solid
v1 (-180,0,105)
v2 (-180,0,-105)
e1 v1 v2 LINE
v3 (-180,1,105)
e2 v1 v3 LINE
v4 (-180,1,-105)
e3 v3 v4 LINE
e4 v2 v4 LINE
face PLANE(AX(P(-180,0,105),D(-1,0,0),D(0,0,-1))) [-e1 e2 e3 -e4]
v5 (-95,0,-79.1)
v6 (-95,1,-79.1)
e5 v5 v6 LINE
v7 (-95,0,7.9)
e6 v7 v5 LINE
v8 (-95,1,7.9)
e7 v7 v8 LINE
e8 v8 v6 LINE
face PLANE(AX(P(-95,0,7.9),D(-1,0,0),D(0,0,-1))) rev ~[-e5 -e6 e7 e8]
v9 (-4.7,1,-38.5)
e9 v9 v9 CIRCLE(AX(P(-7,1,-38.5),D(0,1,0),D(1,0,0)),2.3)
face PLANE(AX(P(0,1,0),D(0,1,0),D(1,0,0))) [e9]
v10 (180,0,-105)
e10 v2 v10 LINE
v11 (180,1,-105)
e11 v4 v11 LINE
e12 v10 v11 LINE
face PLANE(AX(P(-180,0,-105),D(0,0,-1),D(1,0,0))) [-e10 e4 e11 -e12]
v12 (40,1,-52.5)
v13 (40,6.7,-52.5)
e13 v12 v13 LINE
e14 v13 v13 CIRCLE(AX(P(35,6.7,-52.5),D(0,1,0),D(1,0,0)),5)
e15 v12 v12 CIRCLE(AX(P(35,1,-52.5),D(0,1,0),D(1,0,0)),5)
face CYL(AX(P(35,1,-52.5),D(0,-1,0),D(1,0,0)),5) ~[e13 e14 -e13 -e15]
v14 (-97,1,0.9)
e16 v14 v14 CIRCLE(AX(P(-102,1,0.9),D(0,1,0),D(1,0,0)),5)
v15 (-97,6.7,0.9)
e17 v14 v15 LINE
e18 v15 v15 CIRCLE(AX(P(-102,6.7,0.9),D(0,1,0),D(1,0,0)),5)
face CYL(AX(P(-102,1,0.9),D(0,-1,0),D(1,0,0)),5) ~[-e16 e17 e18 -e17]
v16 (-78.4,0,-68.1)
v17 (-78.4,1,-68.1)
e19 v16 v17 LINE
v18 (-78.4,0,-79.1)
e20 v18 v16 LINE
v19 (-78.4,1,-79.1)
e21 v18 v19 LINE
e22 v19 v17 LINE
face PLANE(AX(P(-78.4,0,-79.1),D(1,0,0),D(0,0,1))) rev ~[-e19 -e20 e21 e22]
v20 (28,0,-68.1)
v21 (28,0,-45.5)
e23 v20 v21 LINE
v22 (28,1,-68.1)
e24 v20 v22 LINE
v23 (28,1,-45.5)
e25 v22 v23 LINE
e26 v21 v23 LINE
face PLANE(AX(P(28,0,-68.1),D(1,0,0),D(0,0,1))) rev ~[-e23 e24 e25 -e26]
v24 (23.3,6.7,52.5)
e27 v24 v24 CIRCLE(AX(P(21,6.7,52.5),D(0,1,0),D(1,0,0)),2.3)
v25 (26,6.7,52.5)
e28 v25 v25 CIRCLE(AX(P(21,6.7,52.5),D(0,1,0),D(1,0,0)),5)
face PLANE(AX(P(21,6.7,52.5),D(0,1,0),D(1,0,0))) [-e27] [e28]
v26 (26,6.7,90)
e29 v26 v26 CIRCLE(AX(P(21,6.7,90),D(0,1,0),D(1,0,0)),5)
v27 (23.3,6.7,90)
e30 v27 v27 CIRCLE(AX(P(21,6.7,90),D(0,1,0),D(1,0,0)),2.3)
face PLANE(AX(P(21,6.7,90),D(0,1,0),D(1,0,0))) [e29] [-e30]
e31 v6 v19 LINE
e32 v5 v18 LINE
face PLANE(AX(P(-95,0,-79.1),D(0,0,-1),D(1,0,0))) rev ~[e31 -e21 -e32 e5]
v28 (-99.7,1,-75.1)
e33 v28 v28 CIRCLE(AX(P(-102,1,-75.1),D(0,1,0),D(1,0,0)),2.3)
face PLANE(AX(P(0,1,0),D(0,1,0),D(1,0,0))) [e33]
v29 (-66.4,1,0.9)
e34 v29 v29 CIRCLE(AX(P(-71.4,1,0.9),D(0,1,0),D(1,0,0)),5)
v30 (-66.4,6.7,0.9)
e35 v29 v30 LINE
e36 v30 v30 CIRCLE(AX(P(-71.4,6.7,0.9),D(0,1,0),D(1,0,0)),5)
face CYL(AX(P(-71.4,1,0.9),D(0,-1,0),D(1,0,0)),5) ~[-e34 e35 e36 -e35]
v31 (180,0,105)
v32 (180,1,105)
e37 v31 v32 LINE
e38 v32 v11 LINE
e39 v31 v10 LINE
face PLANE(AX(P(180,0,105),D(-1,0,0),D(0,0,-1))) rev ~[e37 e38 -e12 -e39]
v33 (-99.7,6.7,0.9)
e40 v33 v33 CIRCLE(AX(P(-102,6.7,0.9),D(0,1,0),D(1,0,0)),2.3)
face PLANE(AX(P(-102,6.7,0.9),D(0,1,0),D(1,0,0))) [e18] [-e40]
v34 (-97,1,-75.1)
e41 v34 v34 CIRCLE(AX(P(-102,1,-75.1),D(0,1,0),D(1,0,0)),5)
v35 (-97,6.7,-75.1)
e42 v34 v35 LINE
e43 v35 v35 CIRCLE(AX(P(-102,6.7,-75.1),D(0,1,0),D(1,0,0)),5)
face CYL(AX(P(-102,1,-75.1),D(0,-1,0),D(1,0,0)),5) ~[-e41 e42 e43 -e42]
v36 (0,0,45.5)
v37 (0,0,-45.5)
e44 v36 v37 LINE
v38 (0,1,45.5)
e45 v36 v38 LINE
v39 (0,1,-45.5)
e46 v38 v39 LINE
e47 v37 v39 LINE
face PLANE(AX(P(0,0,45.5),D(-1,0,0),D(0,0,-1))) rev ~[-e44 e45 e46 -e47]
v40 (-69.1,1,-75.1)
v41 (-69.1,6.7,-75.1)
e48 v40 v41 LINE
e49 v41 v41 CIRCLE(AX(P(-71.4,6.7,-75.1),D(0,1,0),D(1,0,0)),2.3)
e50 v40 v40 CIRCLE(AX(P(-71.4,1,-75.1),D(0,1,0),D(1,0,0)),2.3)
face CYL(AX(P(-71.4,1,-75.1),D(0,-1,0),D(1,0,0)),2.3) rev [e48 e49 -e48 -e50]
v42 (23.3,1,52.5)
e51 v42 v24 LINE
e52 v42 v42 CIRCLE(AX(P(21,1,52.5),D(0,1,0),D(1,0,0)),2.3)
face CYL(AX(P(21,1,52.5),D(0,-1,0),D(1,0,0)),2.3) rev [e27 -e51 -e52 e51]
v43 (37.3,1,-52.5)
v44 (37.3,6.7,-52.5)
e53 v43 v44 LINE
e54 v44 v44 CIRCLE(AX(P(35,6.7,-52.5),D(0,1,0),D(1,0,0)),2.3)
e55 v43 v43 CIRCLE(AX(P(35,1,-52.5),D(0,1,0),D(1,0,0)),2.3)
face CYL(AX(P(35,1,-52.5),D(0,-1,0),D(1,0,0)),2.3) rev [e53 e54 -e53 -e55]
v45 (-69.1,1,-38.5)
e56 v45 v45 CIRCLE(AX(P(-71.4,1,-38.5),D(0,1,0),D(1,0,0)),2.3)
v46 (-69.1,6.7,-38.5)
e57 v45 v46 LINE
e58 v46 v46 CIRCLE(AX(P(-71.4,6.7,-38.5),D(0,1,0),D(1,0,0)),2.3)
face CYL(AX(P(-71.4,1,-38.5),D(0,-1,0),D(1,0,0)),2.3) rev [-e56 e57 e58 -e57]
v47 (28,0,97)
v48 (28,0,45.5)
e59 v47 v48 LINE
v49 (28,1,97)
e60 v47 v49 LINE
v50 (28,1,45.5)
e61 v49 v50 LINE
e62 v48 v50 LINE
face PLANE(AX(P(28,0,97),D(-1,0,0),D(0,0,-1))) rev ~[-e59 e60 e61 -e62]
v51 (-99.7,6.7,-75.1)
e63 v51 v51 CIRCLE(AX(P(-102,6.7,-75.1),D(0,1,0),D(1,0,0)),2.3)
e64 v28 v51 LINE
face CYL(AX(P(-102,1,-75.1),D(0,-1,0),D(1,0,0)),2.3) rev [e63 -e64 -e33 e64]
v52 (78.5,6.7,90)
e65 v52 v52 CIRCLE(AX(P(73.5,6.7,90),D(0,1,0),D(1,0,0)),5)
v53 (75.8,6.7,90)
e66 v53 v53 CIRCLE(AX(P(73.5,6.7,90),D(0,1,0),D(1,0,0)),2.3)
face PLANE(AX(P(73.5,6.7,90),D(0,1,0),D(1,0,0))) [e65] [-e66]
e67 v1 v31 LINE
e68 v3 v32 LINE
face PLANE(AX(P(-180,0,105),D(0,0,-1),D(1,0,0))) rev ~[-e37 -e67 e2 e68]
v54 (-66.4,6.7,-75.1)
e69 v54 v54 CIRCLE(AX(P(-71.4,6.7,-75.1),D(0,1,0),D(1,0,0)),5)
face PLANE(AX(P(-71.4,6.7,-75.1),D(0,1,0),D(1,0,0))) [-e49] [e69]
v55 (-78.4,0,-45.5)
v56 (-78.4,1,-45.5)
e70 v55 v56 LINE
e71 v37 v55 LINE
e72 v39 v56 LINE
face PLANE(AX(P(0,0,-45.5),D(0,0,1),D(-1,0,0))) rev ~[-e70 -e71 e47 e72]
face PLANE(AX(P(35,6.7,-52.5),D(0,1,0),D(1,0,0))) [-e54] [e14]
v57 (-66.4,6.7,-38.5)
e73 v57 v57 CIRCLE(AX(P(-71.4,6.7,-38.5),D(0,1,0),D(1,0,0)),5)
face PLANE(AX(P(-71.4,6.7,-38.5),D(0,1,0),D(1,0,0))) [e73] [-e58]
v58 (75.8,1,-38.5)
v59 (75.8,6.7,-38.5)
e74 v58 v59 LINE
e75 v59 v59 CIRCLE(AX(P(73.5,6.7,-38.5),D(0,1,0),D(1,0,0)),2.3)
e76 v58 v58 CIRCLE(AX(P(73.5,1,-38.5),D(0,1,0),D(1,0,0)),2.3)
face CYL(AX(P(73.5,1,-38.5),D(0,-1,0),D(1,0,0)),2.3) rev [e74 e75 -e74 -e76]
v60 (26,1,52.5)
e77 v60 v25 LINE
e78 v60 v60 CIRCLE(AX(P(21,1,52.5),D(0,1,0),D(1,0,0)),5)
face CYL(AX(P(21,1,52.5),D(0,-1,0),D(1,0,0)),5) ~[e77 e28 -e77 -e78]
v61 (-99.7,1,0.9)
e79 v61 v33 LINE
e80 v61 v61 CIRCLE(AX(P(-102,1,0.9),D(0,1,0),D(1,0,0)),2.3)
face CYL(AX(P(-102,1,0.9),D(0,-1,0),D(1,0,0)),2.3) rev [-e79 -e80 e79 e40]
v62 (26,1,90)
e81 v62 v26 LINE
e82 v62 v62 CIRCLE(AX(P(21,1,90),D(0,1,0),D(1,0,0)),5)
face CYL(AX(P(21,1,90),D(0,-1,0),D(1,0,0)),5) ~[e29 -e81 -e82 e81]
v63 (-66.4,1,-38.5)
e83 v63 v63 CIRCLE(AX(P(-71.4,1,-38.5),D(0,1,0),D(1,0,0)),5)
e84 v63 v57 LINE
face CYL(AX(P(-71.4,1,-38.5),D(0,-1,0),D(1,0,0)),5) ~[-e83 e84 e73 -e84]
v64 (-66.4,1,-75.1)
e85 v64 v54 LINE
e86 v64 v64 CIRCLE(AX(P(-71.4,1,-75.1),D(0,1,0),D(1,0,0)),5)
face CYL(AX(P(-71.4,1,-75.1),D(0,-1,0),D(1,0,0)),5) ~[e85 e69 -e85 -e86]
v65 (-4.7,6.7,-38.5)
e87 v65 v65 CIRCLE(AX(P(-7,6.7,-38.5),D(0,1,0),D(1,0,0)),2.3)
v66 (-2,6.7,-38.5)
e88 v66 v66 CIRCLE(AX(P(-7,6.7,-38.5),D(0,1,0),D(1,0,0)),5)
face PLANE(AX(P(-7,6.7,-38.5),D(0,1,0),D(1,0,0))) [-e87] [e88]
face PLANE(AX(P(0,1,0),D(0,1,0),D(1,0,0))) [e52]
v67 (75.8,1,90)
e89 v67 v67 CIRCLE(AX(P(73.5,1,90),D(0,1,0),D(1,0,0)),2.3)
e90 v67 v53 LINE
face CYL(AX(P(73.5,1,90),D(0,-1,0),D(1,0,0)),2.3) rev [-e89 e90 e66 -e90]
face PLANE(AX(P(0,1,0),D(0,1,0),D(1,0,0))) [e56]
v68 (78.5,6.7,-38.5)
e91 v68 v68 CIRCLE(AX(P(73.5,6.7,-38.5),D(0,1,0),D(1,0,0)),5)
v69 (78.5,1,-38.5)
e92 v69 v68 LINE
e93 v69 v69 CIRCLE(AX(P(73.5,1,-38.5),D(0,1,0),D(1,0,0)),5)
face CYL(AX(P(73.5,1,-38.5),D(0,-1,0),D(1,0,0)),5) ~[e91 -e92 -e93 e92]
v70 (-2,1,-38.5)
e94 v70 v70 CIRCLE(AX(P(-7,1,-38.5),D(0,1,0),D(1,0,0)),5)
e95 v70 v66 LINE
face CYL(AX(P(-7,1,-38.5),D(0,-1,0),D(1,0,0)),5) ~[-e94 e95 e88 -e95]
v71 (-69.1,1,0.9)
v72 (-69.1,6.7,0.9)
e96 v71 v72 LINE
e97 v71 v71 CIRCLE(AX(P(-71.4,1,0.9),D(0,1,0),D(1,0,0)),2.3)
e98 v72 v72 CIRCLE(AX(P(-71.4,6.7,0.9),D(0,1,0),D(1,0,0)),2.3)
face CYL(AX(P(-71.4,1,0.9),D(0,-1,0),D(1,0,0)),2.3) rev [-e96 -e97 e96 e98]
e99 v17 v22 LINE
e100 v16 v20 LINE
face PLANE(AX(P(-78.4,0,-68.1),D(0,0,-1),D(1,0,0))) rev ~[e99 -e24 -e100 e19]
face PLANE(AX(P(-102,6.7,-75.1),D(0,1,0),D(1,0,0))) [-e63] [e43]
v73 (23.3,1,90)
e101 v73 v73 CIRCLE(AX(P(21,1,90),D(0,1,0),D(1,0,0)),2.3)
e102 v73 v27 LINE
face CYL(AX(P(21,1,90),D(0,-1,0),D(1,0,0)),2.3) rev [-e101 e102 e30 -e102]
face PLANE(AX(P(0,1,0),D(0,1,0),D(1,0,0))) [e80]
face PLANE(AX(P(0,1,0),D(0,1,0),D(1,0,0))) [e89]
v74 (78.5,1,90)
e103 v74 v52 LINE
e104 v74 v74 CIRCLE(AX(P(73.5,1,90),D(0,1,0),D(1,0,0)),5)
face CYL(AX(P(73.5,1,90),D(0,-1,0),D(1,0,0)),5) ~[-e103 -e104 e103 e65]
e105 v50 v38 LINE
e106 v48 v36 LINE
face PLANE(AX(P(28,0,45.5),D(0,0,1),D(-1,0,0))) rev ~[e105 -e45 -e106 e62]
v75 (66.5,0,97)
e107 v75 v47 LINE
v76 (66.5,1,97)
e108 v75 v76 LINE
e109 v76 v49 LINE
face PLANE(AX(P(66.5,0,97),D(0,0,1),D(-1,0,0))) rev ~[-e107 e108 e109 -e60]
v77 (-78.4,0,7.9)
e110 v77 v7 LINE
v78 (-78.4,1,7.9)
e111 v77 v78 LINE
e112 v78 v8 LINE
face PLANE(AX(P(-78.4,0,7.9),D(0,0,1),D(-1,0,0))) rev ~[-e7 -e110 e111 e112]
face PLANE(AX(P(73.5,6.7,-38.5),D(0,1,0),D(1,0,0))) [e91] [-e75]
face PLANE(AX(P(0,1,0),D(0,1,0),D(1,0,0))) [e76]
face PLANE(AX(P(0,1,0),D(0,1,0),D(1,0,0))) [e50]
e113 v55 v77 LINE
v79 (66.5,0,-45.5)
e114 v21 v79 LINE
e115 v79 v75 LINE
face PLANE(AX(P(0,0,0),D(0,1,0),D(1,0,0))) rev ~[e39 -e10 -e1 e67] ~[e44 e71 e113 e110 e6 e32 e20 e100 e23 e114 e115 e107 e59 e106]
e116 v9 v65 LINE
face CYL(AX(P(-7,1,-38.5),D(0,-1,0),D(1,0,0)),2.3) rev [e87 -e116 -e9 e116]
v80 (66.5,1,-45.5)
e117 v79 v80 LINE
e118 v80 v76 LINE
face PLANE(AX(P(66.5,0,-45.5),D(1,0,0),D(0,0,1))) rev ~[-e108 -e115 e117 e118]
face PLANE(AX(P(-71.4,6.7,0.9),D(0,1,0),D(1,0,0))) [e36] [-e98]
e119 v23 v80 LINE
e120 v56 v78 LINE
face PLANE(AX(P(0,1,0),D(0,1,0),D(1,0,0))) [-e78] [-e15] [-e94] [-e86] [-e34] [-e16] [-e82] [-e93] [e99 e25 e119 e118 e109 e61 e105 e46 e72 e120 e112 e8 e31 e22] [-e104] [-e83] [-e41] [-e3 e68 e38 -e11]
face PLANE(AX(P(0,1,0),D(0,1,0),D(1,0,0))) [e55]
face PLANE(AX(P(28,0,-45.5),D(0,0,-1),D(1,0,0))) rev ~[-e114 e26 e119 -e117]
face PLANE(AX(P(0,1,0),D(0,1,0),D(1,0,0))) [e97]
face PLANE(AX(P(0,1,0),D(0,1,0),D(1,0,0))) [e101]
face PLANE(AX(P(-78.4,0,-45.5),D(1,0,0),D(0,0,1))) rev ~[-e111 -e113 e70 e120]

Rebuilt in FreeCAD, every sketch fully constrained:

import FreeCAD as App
import Part
import Sketcher

V = App.Vector

doc = App.newDocument("Part")
body = doc.addObject("PartDesign::Body", "Body")

# Sketch on XZ plane
sketch1 = body.newObject("Sketcher::SketchObject", "Sketch")
sketch1.AttachmentSupport = (doc.getObject("XZ_Plane"), [""])
sketch1.MapMode = "FlatFace"
sketch1.addGeometry(Part.LineSegment(V(-180, -105, 0), V(-180, 105, 0)), False)
sketch1.addGeometry(Part.LineSegment(V(-180, 105, 0), V(180, 105, 0)), False)
sketch1.addGeometry(Part.LineSegment(V(180, 105, 0), V(180, -105, 0)), False)
sketch1.addGeometry(Part.LineSegment(V(180, -105, 0), V(-180, -105, 0)), False)
sketch1.addGeometry(Part.LineSegment(V(28, 97, 0), V(28, 46, 0)), False)
sketch1.addGeometry(Part.LineSegment(V(28, 46, 0), V(0, 46, 0)), False)
sketch1.addGeometry(Part.LineSegment(V(0, 46, 0), V(0, -46, 0)), False)
sketch1.addGeometry(Part.LineSegment(V(0, -46, 0), V(-78, -46, 0)), False)
sketch1.addGeometry(Part.LineSegment(V(-78, -46, 0), V(-78, 8, 0)), False)
sketch1.addGeometry(Part.LineSegment(V(-78, 8, 0), V(-95, 8, 0)), False)
sketch1.addGeometry(Part.LineSegment(V(-95, 8, 0), V(-95, -79, 0)), False)
sketch1.addGeometry(Part.LineSegment(V(-95, -79, 0), V(-78, -79, 0)), False)
sketch1.addGeometry(Part.LineSegment(V(-78, -79, 0), V(-78, -68, 0)), False)
sketch1.addGeometry(Part.LineSegment(V(-78, -68, 0), V(28, -68, 0)), False)
sketch1.addGeometry(Part.LineSegment(V(28, -68, 0), V(28, -46, 0)), False)
sketch1.addGeometry(Part.LineSegment(V(28, -46, 0), V(66, -46, 0)), False)
sketch1.addGeometry(Part.LineSegment(V(66, -46, 0), V(66, 97, 0)), False)
sketch1.addGeometry(Part.LineSegment(V(66, 97, 0), V(28, 97, 0)), False)
sketch1.addConstraint(Sketcher.Constraint("Coincident", 0, 2, 1, 1))
sketch1.addConstraint(Sketcher.Constraint("Coincident", 1, 2, 2, 1))
sketch1.addConstraint(Sketcher.Constraint("Coincident", 2, 2, 3, 1))
sketch1.addConstraint(Sketcher.Constraint("Coincident", 3, 2, 0, 1))
sketch1.addConstraint(Sketcher.Constraint("Coincident", 4, 2, 5, 1))
sketch1.addConstraint(Sketcher.Constraint("Coincident", 5, 2, 6, 1))
sketch1.addConstraint(Sketcher.Constraint("Coincident", 6, 2, 7, 1))
sketch1.addConstraint(Sketcher.Constraint("Coincident", 7, 2, 8, 1))
sketch1.addConstraint(Sketcher.Constraint("Coincident", 8, 2, 9, 1))
sketch1.addConstraint(Sketcher.Constraint("Coincident", 9, 2, 10, 1))
sketch1.addConstraint(Sketcher.Constraint("Coincident", 10, 2, 11, 1))
sketch1.addConstraint(Sketcher.Constraint("Coincident", 11, 2, 12, 1))
sketch1.addConstraint(Sketcher.Constraint("Coincident", 12, 2, 13, 1))
sketch1.addConstraint(Sketcher.Constraint("Coincident", 13, 2, 14, 1))
sketch1.addConstraint(Sketcher.Constraint("Coincident", 14, 2, 15, 1))
sketch1.addConstraint(Sketcher.Constraint("Coincident", 15, 2, 16, 1))
sketch1.addConstraint(Sketcher.Constraint("Coincident", 16, 2, 17, 1))
sketch1.addConstraint(Sketcher.Constraint("Coincident", 17, 2, 4, 1))
sketch1.addConstraint(Sketcher.Constraint("Vertical", 0))
sketch1.addConstraint(Sketcher.Constraint("Horizontal", 1))
sketch1.addConstraint(Sketcher.Constraint("Vertical", 2))
sketch1.addConstraint(Sketcher.Constraint("Horizontal", 3))
sketch1.addConstraint(Sketcher.Constraint("Vertical", 4))
sketch1.addConstraint(Sketcher.Constraint("Horizontal", 5))
sketch1.addConstraint(Sketcher.Constraint("Vertical", 6))
sketch1.addConstraint(Sketcher.Constraint("Horizontal", 7))
sketch1.addConstraint(Sketcher.Constraint("Vertical", 8))
sketch1.addConstraint(Sketcher.Constraint("Horizontal", 9))
sketch1.addConstraint(Sketcher.Constraint("Vertical", 10))
sketch1.addConstraint(Sketcher.Constraint("Horizontal", 11))
sketch1.addConstraint(Sketcher.Constraint("Vertical", 12))
sketch1.addConstraint(Sketcher.Constraint("Horizontal", 13))
sketch1.addConstraint(Sketcher.Constraint("Vertical", 14))
sketch1.addConstraint(Sketcher.Constraint("Horizontal", 15))
sketch1.addConstraint(Sketcher.Constraint("Vertical", 16))
sketch1.addConstraint(Sketcher.Constraint("Horizontal", 17))
sketch1.addConstraint(Sketcher.Constraint("Symmetric", 0, 2, 2, 2, -1, 1))
sketch1.addConstraint(Sketcher.Constraint("Symmetric", 5, 2, 6, 2, -1, 1))
sketch1.addConstraint(Sketcher.Constraint("Symmetric", 4, 2, 14, 2, -1))
sketch1.addConstraint(Sketcher.Constraint("Vertical", 8, 2, 11, 2))
sketch1.addConstraint(Sketcher.Constraint("DistanceX", 1, 1, 1, 2, 360.0))
sketch1.addConstraint(Sketcher.Constraint("DistanceX", 5, 2, 5, 1, 28.0))
sketch1.addConstraint(Sketcher.Constraint("DistanceY", 0, 1, 0, 2, 210.0))
sketch1.addConstraint(Sketcher.Constraint("DistanceY", 6, 2, 6, 1, 91.0))
sketch1.addConstraint(Sketcher.Constraint("DistanceY", 10, 2, 10, 1, 87.0))
sketch1.addConstraint(Sketcher.Constraint("DistanceY", 12, 1, 12, 2, 11.0))
sketch1.addConstraint(Sketcher.Constraint("DistanceX", 7, 2, 7, 1, 78.4))
sketch1.addConstraint(Sketcher.Constraint("DistanceX", 9, 2, 9, 1, 16.6))
sketch1.addConstraint(Sketcher.Constraint("DistanceX", 15, 1, 15, 2, 38.5))
sketch1.addConstraint(Sketcher.Constraint("DistanceY", 4, 2, 4, 1, 51.5))
sketch1.addConstraint(Sketcher.Constraint("DistanceY", 8, 1, 8, 2, 53.4))
pad1 = body.newObject("PartDesign::Pad", "Pad")
pad1.Profile = sketch1
pad1.Length = 1
pad1.Reversed = True

# Sketch on XZ plane
sketch2 = body.newObject("Sketcher::SketchObject", "Sketch001")
sketch2.AttachmentSupport = (doc.getObject("XZ_Plane"), [""])
sketch2.MapMode = "FlatFace"
sketch2.AttachmentOffset = App.Placement(V(0, 0, -1), App.Rotation())
sketch2.addGeometry(Part.Circle(V(-71.4, -75.1, 0), V(0, 0, 1), 5), False)
sketch2.addGeometry(Part.Circle(V(-71.4, -75.1, 0), V(0, 0, 1), 2.3), False)
sketch2.addGeometry(Part.Circle(V(-71.4, -38.5, 0), V(0, 0, 1), 5), False)
sketch2.addGeometry(Part.Circle(V(-71.4, -38.5, 0), V(0, 0, 1), 2.3), False)
sketch2.addGeometry(Part.Circle(V(-102, -75.1, 0), V(0, 0, 1), 5), False)
sketch2.addGeometry(Part.Circle(V(-102, -75.1, 0), V(0, 0, 1), 2.3), False)
sketch2.addGeometry(Part.Circle(V(-7, -38.5, 0), V(0, 0, 1), 5), False)
sketch2.addGeometry(Part.Circle(V(-7, -38.5, 0), V(0, 0, 1), 2.3), False)
sketch2.addGeometry(Part.Circle(V(35, -52.5, 0), V(0, 0, 1), 5), False)
sketch2.addGeometry(Part.Circle(V(35, -52.5, 0), V(0, 0, 1), 2.3), False)
sketch2.addGeometry(Part.Circle(V(21, 52.5, 0), V(0, 0, 1), 5), False)
sketch2.addGeometry(Part.Circle(V(21, 52.5, 0), V(0, 0, 1), 2.3), False)
sketch2.addGeometry(Part.Circle(V(-71.4, 0.9, 0), V(0, 0, 1), 5), False)
sketch2.addGeometry(Part.Circle(V(-71.4, 0.9, 0), V(0, 0, 1), 2.3), False)
sketch2.addGeometry(Part.Circle(V(-102, 0.9, 0), V(0, 0, 1), 5), False)
sketch2.addGeometry(Part.Circle(V(-102, 0.9, 0), V(0, 0, 1), 2.3), False)
sketch2.addGeometry(Part.Circle(V(73.5, -38.5, 0), V(0, 0, 1), 5), False)
sketch2.addGeometry(Part.Circle(V(73.5, -38.5, 0), V(0, 0, 1), 2.3), False)
sketch2.addGeometry(Part.Circle(V(73.5, 90, 0), V(0, 0, 1), 5), False)
sketch2.addGeometry(Part.Circle(V(73.5, 90, 0), V(0, 0, 1), 2.3), False)
sketch2.addGeometry(Part.Circle(V(21, 90, 0), V(0, 0, 1), 5), False)
sketch2.addGeometry(Part.Circle(V(21, 90, 0), V(0, 0, 1), 2.3), False)
sketch2.addConstraint(Sketcher.Constraint("Coincident", 1, 3, 0, 3))
sketch2.addConstraint(Sketcher.Constraint("Coincident", 3, 3, 2, 3))
sketch2.addConstraint(Sketcher.Constraint("Coincident", 5, 3, 4, 3))
sketch2.addConstraint(Sketcher.Constraint("Coincident", 7, 3, 6, 3))
sketch2.addConstraint(Sketcher.Constraint("Coincident", 9, 3, 8, 3))
sketch2.addConstraint(Sketcher.Constraint("Coincident", 11, 3, 10, 3))
sketch2.addConstraint(Sketcher.Constraint("Coincident", 13, 3, 12, 3))
sketch2.addConstraint(Sketcher.Constraint("Coincident", 15, 3, 14, 3))
sketch2.addConstraint(Sketcher.Constraint("Coincident", 17, 3, 16, 3))
sketch2.addConstraint(Sketcher.Constraint("Coincident", 19, 3, 18, 3))
sketch2.addConstraint(Sketcher.Constraint("Coincident", 21, 3, 20, 3))
sketch2.addConstraint(Sketcher.Constraint("Equal", 0, 2))
sketch2.addConstraint(Sketcher.Constraint("Equal", 1, 3))
sketch2.addConstraint(Sketcher.Constraint("Equal", 2, 4))
sketch2.addConstraint(Sketcher.Constraint("Equal", 3, 5))
sketch2.addConstraint(Sketcher.Constraint("Equal", 4, 6))
sketch2.addConstraint(Sketcher.Constraint("Equal", 5, 7))
sketch2.addConstraint(Sketcher.Constraint("Equal", 6, 8))
sketch2.addConstraint(Sketcher.Constraint("Equal", 7, 9))
sketch2.addConstraint(Sketcher.Constraint("Equal", 8, 10))
sketch2.addConstraint(Sketcher.Constraint("Equal", 9, 11))
sketch2.addConstraint(Sketcher.Constraint("Equal", 10, 12))
sketch2.addConstraint(Sketcher.Constraint("Equal", 11, 13))
sketch2.addConstraint(Sketcher.Constraint("Equal", 12, 14))
sketch2.addConstraint(Sketcher.Constraint("Equal", 13, 15))
sketch2.addConstraint(Sketcher.Constraint("Equal", 14, 16))
sketch2.addConstraint(Sketcher.Constraint("Equal", 15, 17))
sketch2.addConstraint(Sketcher.Constraint("Equal", 16, 18))
sketch2.addConstraint(Sketcher.Constraint("Equal", 17, 19))
sketch2.addConstraint(Sketcher.Constraint("Equal", 18, 20))
sketch2.addConstraint(Sketcher.Constraint("Equal", 19, 21))
sketch2.addConstraint(Sketcher.Constraint("Horizontal", 1, 3, 4, 3))
sketch2.addConstraint(Sketcher.Constraint("Horizontal", 3, 3, 6, 3))
sketch2.addConstraint(Sketcher.Constraint("Horizontal", 13, 3, 14, 3))
sketch2.addConstraint(Sketcher.Constraint("Horizontal", 7, 3, 16, 3))
sketch2.addConstraint(Sketcher.Constraint("Horizontal", 19, 3, 20, 3))
sketch2.addConstraint(Sketcher.Constraint("Vertical", 1, 3, 2, 3))
sketch2.addConstraint(Sketcher.Constraint("Vertical", 3, 3, 12, 3))
sketch2.addConstraint(Sketcher.Constraint("Vertical", 5, 3, 14, 3))
sketch2.addConstraint(Sketcher.Constraint("Vertical", 17, 3, 18, 3))
sketch2.addConstraint(Sketcher.Constraint("Vertical", 11, 3, 20, 3))
sketch2.addConstraint(Sketcher.Constraint("Diameter", 0, 10.0))
sketch2.addConstraint(Sketcher.Constraint("Diameter", 1, 4.6))
sketch2.addConstraint(Sketcher.Constraint("DistanceX", 4, 3, -1, 1, 102.0))
sketch2.addConstraint(Sketcher.Constraint("DistanceX", 6, 3, -1, 1, 7.0))
sketch2.addConstraint(Sketcher.Constraint("DistanceX", -1, 1, 8, 3, 35.0))
sketch2.addConstraint(Sketcher.Constraint("DistanceX", -1, 1, 10, 3, 21.0))
sketch2.addConstraint(Sketcher.Constraint("DistanceY", -1, 1, 18, 3, 90.0))
sketch2.addConstraint(Sketcher.Constraint("DistanceY", 8, 3, 6, 3, 14.0))
sketch2.addConstraint(Sketcher.Constraint("DistanceY", 6, 3, 10, 3, 91.0))
sketch2.addConstraint(Sketcher.Constraint("DistanceY", 0, 3, 12, 3, 76.0))
sketch2.addConstraint(Sketcher.Constraint("DistanceX", 0, 3, -1, 1, 71.4))
sketch2.addConstraint(Sketcher.Constraint("DistanceY", 0, 3, -1, 1, 75.1))
sketch2.addConstraint(Sketcher.Constraint("DistanceY", 2, 3, -1, 1, 38.5))
sketch2.addConstraint(Sketcher.Constraint("DistanceX", -1, 1, 16, 3, 73.5))
pad2 = body.newObject("PartDesign::Pad", "Pad001")
pad2.Profile = sketch2
pad2.Length = 5.7
pad2.Reversed = True

doc.recompute()
